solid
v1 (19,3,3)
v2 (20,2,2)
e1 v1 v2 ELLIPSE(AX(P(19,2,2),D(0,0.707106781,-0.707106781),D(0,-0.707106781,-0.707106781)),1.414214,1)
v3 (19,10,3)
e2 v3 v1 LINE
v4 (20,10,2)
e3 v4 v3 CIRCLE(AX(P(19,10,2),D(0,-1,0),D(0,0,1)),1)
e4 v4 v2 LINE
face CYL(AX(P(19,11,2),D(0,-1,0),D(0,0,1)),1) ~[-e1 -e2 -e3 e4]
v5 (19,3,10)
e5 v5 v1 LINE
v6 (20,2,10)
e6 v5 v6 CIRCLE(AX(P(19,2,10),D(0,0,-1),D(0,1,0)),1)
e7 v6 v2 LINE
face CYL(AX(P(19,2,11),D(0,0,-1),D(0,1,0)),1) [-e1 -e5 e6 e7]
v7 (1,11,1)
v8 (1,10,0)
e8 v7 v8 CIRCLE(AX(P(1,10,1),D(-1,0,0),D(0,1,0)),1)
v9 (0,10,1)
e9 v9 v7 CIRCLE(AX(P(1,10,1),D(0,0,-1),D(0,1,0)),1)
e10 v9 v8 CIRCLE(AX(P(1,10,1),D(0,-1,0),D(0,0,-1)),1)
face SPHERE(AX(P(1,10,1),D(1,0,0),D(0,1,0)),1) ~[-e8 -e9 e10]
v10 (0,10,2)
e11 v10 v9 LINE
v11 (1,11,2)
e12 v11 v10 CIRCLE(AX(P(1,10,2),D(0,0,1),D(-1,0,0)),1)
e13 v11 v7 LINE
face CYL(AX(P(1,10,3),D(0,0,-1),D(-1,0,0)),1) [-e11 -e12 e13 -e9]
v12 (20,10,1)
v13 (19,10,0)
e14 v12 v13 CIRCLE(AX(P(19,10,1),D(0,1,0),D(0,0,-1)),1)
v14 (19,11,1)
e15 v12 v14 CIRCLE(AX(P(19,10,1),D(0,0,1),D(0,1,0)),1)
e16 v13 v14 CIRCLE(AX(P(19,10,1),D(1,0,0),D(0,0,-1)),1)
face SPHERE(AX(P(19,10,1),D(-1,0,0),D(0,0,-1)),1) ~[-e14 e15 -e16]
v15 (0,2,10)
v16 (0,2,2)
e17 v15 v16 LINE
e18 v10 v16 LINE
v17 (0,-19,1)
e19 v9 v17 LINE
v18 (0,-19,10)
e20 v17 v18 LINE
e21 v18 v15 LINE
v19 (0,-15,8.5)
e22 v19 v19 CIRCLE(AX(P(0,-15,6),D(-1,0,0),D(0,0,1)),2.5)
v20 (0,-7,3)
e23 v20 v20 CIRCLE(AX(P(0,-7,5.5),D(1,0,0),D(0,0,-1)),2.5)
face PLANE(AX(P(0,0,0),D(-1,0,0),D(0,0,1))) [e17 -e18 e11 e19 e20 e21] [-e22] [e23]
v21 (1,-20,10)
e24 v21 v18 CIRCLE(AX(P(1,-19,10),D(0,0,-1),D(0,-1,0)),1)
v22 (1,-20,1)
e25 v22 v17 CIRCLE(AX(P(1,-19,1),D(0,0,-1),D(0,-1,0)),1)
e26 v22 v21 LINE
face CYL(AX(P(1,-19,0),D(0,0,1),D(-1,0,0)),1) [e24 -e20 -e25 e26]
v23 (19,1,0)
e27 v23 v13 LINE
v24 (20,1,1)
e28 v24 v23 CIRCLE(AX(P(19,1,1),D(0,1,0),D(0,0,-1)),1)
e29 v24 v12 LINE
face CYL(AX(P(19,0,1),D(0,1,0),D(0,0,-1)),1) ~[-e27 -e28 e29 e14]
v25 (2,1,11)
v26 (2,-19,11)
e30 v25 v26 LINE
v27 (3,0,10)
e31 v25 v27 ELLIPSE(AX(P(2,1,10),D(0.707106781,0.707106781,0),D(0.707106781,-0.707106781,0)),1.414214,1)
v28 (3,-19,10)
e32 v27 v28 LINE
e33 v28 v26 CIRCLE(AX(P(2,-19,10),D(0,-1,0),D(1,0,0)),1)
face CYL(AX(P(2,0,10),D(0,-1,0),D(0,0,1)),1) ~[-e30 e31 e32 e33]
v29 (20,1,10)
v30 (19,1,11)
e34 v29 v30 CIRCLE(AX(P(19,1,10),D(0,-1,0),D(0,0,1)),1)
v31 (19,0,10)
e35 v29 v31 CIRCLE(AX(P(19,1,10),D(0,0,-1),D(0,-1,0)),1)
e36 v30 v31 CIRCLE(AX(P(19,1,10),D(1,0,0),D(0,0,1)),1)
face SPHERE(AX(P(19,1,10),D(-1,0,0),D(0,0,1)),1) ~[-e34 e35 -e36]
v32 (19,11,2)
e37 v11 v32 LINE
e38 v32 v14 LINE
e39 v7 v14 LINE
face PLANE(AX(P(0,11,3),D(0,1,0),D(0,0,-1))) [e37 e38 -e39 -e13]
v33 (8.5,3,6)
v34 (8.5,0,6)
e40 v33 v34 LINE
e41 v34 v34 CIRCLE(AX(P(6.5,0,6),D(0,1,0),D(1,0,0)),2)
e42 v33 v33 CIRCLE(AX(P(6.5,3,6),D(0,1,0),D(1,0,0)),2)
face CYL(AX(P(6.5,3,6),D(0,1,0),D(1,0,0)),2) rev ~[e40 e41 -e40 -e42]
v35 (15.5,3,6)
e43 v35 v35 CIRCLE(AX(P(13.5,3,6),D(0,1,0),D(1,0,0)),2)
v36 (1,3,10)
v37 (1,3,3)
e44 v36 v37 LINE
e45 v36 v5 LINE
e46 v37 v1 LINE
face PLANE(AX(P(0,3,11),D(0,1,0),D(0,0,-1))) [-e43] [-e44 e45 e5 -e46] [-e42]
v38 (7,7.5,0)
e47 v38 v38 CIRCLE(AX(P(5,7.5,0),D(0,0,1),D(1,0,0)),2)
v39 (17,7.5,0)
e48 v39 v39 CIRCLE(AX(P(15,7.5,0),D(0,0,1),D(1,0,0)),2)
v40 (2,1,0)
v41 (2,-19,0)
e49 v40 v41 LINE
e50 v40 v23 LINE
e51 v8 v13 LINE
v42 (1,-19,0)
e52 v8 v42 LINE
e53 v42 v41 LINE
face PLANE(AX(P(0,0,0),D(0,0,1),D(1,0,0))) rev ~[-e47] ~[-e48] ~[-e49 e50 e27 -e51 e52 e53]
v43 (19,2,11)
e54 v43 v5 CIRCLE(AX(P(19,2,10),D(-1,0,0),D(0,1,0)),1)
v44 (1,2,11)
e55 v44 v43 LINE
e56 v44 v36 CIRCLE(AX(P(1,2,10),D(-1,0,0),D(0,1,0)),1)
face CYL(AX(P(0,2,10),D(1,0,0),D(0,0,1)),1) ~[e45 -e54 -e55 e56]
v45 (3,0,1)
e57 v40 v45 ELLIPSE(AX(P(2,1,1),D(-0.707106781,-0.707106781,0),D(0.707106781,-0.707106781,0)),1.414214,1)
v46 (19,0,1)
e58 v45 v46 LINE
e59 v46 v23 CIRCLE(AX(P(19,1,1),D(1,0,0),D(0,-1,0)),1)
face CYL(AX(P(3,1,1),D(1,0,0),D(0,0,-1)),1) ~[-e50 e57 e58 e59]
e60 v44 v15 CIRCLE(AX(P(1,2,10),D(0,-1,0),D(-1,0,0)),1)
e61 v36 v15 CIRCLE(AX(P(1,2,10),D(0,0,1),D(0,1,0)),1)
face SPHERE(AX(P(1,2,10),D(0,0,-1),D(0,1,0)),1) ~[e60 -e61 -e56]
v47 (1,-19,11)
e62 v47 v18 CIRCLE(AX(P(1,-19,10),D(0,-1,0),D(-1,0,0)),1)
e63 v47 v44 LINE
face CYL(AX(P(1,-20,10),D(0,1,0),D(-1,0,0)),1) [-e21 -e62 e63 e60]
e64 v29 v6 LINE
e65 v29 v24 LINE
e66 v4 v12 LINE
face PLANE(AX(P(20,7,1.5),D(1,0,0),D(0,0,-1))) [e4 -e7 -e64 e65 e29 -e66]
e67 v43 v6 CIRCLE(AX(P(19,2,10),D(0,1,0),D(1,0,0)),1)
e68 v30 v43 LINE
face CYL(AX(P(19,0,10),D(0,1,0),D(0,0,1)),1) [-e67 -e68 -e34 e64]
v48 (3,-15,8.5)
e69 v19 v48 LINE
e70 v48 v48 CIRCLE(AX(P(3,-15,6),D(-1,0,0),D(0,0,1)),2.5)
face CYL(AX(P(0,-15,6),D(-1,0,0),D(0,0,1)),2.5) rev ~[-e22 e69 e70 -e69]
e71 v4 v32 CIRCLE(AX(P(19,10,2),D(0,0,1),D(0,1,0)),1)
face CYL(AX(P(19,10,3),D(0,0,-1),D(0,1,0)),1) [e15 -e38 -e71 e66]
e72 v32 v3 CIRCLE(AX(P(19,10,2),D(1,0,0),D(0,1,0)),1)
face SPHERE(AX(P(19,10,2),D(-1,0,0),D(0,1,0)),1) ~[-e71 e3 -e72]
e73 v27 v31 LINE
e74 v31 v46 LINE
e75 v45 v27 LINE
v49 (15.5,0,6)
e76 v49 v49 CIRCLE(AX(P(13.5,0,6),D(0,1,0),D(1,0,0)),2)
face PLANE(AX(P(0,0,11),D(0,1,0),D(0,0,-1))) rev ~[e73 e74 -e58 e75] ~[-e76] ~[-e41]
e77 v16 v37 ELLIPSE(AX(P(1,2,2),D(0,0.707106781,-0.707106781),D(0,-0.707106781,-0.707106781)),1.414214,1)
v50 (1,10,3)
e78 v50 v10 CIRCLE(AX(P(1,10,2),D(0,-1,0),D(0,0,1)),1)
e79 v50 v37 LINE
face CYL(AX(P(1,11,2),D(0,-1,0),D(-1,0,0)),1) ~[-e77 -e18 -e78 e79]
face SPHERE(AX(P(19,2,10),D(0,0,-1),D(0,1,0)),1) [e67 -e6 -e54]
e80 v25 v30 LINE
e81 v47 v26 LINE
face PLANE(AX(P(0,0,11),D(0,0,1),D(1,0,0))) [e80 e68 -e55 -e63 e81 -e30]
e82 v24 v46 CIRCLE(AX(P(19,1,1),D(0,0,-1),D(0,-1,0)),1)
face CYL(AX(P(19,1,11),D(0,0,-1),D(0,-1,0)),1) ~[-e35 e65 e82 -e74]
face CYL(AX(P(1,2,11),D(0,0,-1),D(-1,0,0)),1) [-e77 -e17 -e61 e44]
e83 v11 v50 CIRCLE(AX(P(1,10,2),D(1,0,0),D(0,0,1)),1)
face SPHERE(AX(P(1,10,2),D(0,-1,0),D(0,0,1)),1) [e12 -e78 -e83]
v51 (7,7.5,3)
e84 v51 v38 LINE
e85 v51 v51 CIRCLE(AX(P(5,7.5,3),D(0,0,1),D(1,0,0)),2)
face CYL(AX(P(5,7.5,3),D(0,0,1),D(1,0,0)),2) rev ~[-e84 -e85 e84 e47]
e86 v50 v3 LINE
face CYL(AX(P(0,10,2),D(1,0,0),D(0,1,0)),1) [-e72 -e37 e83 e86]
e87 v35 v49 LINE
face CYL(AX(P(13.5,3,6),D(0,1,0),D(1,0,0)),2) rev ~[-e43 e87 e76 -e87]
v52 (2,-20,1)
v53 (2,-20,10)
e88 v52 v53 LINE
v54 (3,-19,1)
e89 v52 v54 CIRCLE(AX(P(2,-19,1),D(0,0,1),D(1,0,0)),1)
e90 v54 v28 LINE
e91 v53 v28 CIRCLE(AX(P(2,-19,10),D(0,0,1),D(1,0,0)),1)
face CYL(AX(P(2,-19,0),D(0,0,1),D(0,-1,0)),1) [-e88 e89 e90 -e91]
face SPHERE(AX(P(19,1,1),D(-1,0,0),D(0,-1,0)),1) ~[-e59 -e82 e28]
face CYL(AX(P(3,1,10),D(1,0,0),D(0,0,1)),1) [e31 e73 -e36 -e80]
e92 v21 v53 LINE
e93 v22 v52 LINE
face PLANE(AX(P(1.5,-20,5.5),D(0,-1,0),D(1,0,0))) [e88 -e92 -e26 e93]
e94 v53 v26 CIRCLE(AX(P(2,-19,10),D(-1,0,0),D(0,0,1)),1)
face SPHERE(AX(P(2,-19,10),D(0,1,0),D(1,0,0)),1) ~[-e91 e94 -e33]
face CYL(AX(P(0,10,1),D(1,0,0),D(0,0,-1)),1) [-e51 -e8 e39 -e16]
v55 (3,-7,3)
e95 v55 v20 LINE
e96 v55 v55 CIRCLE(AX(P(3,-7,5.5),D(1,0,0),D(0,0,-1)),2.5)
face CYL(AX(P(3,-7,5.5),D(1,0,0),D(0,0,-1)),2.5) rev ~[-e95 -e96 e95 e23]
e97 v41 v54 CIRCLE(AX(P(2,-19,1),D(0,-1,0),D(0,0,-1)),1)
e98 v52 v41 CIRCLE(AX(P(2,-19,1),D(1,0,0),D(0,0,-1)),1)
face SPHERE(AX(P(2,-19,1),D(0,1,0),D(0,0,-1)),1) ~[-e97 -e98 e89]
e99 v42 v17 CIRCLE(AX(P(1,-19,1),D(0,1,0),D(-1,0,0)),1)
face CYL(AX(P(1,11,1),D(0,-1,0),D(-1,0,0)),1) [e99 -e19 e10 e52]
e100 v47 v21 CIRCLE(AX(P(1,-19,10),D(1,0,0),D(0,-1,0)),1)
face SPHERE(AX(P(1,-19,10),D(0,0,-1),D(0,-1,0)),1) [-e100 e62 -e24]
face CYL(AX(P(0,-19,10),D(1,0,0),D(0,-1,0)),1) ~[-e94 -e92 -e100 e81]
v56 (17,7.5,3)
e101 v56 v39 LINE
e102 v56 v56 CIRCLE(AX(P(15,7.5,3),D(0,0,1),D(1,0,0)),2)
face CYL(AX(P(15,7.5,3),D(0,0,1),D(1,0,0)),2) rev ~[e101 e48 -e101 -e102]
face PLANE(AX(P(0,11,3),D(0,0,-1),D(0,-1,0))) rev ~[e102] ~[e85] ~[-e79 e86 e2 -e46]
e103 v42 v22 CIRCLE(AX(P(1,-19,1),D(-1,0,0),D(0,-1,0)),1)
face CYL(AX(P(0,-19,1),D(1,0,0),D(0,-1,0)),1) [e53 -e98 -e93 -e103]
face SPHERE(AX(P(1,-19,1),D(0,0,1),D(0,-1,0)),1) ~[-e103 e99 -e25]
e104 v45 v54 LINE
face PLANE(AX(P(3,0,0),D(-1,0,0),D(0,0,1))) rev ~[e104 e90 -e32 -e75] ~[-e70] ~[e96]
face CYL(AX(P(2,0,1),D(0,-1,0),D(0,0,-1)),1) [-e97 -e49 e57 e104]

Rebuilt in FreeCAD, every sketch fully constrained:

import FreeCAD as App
import Part
import Sketcher
from FreeCAD import Vector


def edges_at(feature, points):
    """Names of the edges that pass closest to the given points."""
    edges = feature.Shape.Edges
    near = lambda p: min(range(len(edges)), key=lambda i: edges[i].distToShape(Part.Vertex(*p))[0])
    return sorted({f"Edge{near(p) + 1}" for p in points})

doc = App.newDocument("Part")
body = doc.addObject("PartDesign::Body", "Body")

# Sketch on YZ plane
sketch1 = body.newObject("Sketcher::SketchObject", "Sketch")
sketch1.AttachmentSupport = (doc.getObject("YZ_Plane"), [""])
sketch1.MapMode = "FlatFace"
sketch1.addGeometry(Part.LineSegment(Vector(11, 3, 0), Vector(3, 3, 0)), False)
sketch1.addGeometry(Part.LineSegment(Vector(3, 3, 0), Vector(3, 11, 0)), False)
sketch1.addGeometry(Part.LineSegment(Vector(3, 11, 0), Vector(0, 11, 0)), False)
sketch1.addGeometry(Part.LineSegment(Vector(0, 11, 0), Vector(0, 0, 0)), False)
sketch1.addGeometry(Part.LineSegment(Vector(0, 0, 0), Vector(11, 0, 0)), False)
sketch1.addGeometry(Part.LineSegment(Vector(11, 0, 0), Vector(11, 3, 0)), False)
sketch1.addConstraint(Sketcher.Constraint("Coincident", 0, 2, 1, 1))
sketch1.addConstraint(Sketcher.Constraint("Coincident", 1, 2, 2, 1))
sketch1.addConstraint(Sketcher.Constraint("Coincident", 2, 2, 3, 1))
sketch1.addConstraint(Sketcher.Constraint("Coincident", 3, 2, 4, 1))
sketch1.addConstraint(Sketcher.Constraint("Coincident", 4, 2, 5, 1))
sketch1.addConstraint(Sketcher.Constraint("Coincident", 5, 2, 0, 1))
sketch1.addConstraint(Sketcher.Constraint("Horizontal", 0))
sketch1.addConstraint(Sketcher.Constraint("Vertical", 1))
sketch1.addConstraint(Sketcher.Constraint("Horizontal", 2))
sketch1.addConstraint(Sketcher.Constraint("Vertical", 3))
sketch1.addConstraint(Sketcher.Constraint("Horizontal", 4))
sketch1.addConstraint(Sketcher.Constraint("Vertical", 5))
sketch1.addConstraint(Sketcher.Constraint("Coincident", 3, 2, -1, 1))
sketch1.addConstraint(Sketcher.Constraint("Equal", 0, 1))
sketch1.addConstraint(Sketcher.Constraint("Equal", 4, 3))
sketch1.addConstraint(Sketcher.Constraint("DistanceX", 0, 2, 0, 1, 8.0))
sketch1.addConstraint(Sketcher.Constraint("DistanceX", 2, 2, 2, 1, 3.0))
pad1 = body.newObject("PartDesign::Pad", "Pad")
pad1.Profile = sketch1
pad1.Length = 20

# Sketch on XY plane
sketch2 = body.newObject("Sketcher::SketchObject", "Sketch001")
sketch2.AttachmentSupport = (doc.getObject("XY_Plane"), [""])
sketch2.MapMode = "FlatFace"
sketch2.AttachmentOffset = App.Placement(Vector(0, 0, 3), App.Rotation())
sketch2.addGeometry(Part.Circle(Vector(5, 7.5, 0), Vector(0, 0, 1), 2), False)
sketch2.addGeometry(Part.Circle(Vector(15, 7.5, 0), Vector(0, 0, 1), 2), False)
sketch2.addConstraint(Sketcher.Constraint("Equal", 0, 1))
sketch2.addConstraint(Sketcher.Constraint("Horizontal", 0, 3, 1, 3))
sketch2.addConstraint(Sketcher.Constraint("Diameter", 0, 4.0))
sketch2.addConstraint(Sketcher.Constraint("DistanceX", -1, 1, 0, 3, 5.0))
sketch2.addConstraint(Sketcher.Constraint("DistanceX", -1, 1, 1, 3, 15.0))
sketch2.addConstraint(Sketcher.Constraint("DistanceY", -1, 1, 0, 3, 7.5))
pocket1 = body.newObject("PartDesign::Pocket", "Pocket")
pocket1.Profile = sketch2
pocket1.Type = "ThroughAll"

# Sketch on XZ plane
sketch3 = body.newObject("Sketcher::SketchObject", "Sketch002")
sketch3.AttachmentSupport = (doc.getObject("XZ_Plane"), [""])
sketch3.MapMode = "FlatFace"
sketch3.AttachmentOffset = App.Placement(Vector(0, 0, -3), App.Rotation())
sketch3.addGeometry(Part.Circle(Vector(6.5, 6, 0), Vector(0, 0, 1), 2), False)
sketch3.addGeometry(Part.Circle(Vector(13.5, 6, 0), Vector(0, 0, 1), 2), False)
sketch3.addConstraint(Sketcher.Constraint("Equal", 0, 1))
sketch3.addConstraint(Sketcher.Constraint("Horizontal", 0, 3, 1, 3))
sketch3.addConstraint(Sketcher.Constraint("Diameter", 0, 4.0))
sketch3.addConstraint(Sketcher.Constraint("DistanceY", -1, 1, 0, 3, 6.0))
sketch3.addConstraint(Sketcher.Constraint("DistanceX", 0, 3, 1, 3, 7.0))
sketch3.addConstraint(Sketcher.Constraint("DistanceX", -1, 1, 0, 3, 6.5))
pocket2 = body.newObject("PartDesign::Pocket", "Pocket001")
pocket2.Profile = sketch3
pocket2.Type = "ThroughAll"
pocket2.Reversed = True

# Sketch on XZ plane
sketch4 = body.newObject("Sketcher::SketchObject", "Sketch003")
sketch4.AttachmentSupport = (doc.getObject("XZ_Plane"), [""])
sketch4.MapMode = "FlatFace"
sketch4.addGeometry(Part.LineSegment(Vector(0, 11, 0), Vector(0, 0, 0)), False)
sketch4.addGeometry(Part.LineSegment(Vector(0, 0, 0), Vector(3, 0, 0)), False)
sketch4.addGeometry(Part.LineSegment(Vector(3, 0, 0), Vector(3, 11, 0)), False)
sketch4.addGeometry(Part.LineSegment(Vector(3, 11, 0), Vector(0, 11, 0)), False)
sketch4.addConstraint(Sketcher.Constraint("Coincident", 0, 2, 1, 1))
sketch4.addConstraint(Sketcher.Constraint("Coincident", 1, 2, 2, 1))
sketch4.addConstraint(Sketcher.Constraint("Coincident", 2, 2, 3, 1))
sketch4.addConstraint(Sketcher.Constraint("Coincident", 3, 2, 0, 1))
sketch4.addConstraint(Sketcher.Constraint("Vertical", 0))
sketch4.addConstraint(Sketcher.Constraint("Horizontal", 1))
sketch4.addConstraint(Sketcher.Constraint("Vertical", 2))
sketch4.addConstraint(Sketcher.Constraint("Horizontal", 3))
sketch4.addConstraint(Sketcher.Constraint("Coincident", 0, 2, -1, 1))
sketch4.addConstraint(Sketcher.Constraint("DistanceX", 1, 1, 1, 2, 3.0))
sketch4.addConstraint(Sketcher.Constraint("DistanceY", 0, 2, 0, 1, 11.0))
pad2 = body.newObject("PartDesign::Pad", "Pad001")
pad2.Profile = sketch4
pad2.Length = 20

# Sketch on YZ plane
sketch5 = body.newObject("Sketcher::SketchObject", "Sketch004")
sketch5.AttachmentSupport = (doc.getObject("YZ_Plane"), [""])
sketch5.MapMode = "FlatFace"
sketch5.addGeometry(Part.Circle(Vector(-15, 6, 0), Vector(0, 0, 1), 2.5), False)
sketch5.addConstraint(Sketcher.Constraint("Diameter", 0, 5.0))
sketch5.addConstraint(Sketcher.Constraint("DistanceX", 0, 3, -1, 1, 15.0))
sketch5.addConstraint(Sketcher.Constraint("DistanceY", -1, 1, 0, 3, 6.0))
pocket3 = body.newObject("PartDesign::Pocket", "Pocket002")
pocket3.Profile = sketch5
pocket3.Type = "ThroughAll"
pocket3.Reversed = True
doc.recompute()

fillet = body.newObject("PartDesign::Fillet", "Fillet")
fillet.Base = (pocket3, edges_at(pocket3, [
    (20, 3, 7),
    (0, 3, 7),
    (0, 7, 3),
    (10, 11, 3),
    (10, 11, 0),
    (11.5, 0, 0),
    (11.5, 0, 11),
    (10, 3, 11),
    (20, 1.5, 11),
    (20, 0, 5.5),
    (20, 5.5, 0),
    (20, 11, 1.5),
    (3, -10, 0),
    (3, -10, 11),
    (0, -20, 5.5),
    (1.5, -20, 0),
    (3, -20, 5.5),
    (1.5, -20, 11),
    (20, 7, 3),
    (0, 11, 1.5),
    (0, -4.5, 0),
    (0, -8.5, 11),
]))
fillet.Radius = 1

# Sketch on YZ plane
sketch6 = body.newObject("Sketcher::SketchObject", "Sketch005")
sketch6.AttachmentSupport = (doc.getObject("YZ_Plane"), [""])
sketch6.MapMode = "FlatFace"
sketch6.AttachmentOffset = App.Placement(Vector(0, 0, 3), App.Rotation())
sketch6.addGeometry(Part.Circle(Vector(-7, 5.5, 0), Vector(0, 0, 1), 2.5), False)
sketch6.addConstraint(Sketcher.Constraint("Diameter", 0, 5.0))
sketch6.addConstraint(Sketcher.Constraint("DistanceX", 0, 3, -1, 1, 7.0))
sketch6.addConstraint(Sketcher.Constraint("DistanceY", -1, 1, 0, 3, 5.5))
pocket4 = body.newObject("PartDesign::Pocket", "Pocket003")
pocket4.Profile = sketch6
pocket4.Type = "ThroughAll"

doc.recompute()
